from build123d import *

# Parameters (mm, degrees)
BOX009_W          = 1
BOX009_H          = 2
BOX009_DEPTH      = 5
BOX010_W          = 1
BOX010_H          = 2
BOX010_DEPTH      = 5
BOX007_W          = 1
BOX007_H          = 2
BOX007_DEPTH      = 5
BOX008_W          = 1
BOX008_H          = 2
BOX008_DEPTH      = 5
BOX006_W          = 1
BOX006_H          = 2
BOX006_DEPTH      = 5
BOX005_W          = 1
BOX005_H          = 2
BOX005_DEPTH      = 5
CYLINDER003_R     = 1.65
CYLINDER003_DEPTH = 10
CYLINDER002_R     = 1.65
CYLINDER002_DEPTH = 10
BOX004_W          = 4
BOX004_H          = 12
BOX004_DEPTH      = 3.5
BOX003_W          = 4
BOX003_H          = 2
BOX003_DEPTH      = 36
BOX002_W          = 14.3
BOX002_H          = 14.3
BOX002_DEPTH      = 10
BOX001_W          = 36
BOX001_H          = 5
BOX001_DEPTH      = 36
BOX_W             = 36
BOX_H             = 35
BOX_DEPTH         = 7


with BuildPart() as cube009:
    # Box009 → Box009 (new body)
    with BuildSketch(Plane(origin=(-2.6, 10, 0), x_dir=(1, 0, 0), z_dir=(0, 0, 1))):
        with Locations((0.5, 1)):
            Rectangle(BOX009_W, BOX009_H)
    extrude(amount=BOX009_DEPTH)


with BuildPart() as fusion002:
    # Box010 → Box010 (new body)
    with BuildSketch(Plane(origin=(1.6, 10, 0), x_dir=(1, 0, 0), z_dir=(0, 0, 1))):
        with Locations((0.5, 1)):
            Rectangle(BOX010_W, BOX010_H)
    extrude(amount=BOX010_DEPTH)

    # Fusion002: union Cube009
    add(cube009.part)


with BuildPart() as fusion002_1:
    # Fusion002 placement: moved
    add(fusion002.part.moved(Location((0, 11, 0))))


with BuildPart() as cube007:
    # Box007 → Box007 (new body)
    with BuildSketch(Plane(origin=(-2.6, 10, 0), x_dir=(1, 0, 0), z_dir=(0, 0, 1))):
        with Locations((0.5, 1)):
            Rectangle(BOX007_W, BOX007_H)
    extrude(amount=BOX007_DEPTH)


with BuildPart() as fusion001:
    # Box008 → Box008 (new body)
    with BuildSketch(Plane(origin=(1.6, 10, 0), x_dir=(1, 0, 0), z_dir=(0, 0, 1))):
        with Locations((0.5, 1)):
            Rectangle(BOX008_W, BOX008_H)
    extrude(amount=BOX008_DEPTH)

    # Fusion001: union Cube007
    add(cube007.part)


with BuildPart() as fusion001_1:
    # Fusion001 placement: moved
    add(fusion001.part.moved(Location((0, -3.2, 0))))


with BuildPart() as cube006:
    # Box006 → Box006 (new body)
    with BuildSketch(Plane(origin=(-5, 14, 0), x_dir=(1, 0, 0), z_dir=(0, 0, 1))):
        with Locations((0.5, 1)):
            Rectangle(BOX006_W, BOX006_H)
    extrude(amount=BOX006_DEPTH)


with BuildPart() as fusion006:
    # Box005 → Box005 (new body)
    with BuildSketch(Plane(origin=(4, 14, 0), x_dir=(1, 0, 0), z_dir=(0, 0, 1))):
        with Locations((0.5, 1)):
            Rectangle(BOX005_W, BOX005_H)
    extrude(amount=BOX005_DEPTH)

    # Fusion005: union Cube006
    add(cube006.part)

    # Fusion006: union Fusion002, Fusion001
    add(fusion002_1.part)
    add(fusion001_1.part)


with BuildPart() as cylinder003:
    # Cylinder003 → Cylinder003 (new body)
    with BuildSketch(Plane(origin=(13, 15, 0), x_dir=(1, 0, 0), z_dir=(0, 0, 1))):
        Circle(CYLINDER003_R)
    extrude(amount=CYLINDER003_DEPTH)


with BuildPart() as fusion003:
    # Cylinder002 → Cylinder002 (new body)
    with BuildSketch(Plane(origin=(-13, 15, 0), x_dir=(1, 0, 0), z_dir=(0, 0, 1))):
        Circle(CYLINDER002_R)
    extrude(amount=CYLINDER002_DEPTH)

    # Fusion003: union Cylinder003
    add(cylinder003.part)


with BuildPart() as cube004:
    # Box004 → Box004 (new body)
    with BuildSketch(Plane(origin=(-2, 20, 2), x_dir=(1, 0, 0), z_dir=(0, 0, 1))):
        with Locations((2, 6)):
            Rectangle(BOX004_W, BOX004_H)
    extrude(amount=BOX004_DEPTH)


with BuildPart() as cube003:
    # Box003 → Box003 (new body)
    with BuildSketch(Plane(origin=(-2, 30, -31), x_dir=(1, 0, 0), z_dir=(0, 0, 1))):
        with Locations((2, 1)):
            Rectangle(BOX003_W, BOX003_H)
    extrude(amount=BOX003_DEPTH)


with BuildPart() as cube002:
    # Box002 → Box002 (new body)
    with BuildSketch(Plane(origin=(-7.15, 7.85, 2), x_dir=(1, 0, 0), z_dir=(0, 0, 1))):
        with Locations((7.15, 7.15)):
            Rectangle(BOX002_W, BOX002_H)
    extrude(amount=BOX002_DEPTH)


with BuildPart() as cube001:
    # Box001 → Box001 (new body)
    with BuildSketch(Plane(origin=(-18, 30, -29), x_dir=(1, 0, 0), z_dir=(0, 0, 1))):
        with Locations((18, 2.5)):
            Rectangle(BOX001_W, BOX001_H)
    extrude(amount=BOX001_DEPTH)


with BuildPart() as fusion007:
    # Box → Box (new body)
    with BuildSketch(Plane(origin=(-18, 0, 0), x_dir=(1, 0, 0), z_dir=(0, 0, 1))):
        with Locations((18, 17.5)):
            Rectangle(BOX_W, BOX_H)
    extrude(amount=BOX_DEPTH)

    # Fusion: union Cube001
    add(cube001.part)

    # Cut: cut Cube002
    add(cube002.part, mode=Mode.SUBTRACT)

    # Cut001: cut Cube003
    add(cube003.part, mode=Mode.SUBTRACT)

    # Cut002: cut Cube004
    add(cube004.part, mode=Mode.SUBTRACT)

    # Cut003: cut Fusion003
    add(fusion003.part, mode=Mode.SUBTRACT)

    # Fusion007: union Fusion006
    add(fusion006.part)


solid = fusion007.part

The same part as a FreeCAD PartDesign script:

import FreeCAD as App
import Part
import Sketcher

V = App.Vector

doc = App.newDocument("Part")
body = doc.addObject("PartDesign::Body", "Body")

sketch1 = body.newObject("Sketcher::SketchObject", "Sketch")
sketch1.AttachmentSupport = (doc.getObject("XY_Plane"), [""])
sketch1.MapMode = "FlatFace"
sketch1.addGeometry([
    Part.LineSegment(V(-2.6, 12, 0), V(-2.6, 10, 0)),
    Part.LineSegment(V(-2.6, 10, 0), V(-1.6, 10, 0)),
    Part.LineSegment(V(-1.6, 10, 0), V(-1.6, 12, 0)),
    Part.LineSegment(V(-1.6, 12, 0), V(-2.6, 12, 0)),
], False)
sketch1.addConstraint([
    Sketcher.Constraint("Coincident", 0, 2, 1, 1),
    Sketcher.Constraint("Coincident", 1, 2, 2, 1),
    Sketcher.Constraint("Coincident", 2, 2, 3, 1),
    Sketcher.Constraint("Coincident", 3, 2, 0, 1),
    Sketcher.Constraint("Vertical", 0),
    Sketcher.Constraint("Horizontal", 1),
    Sketcher.Constraint("Vertical", 2),
    Sketcher.Constraint("Horizontal", 3),
    Sketcher.Constraint("DistanceX", 1, 1, 1, 2, 1.0),
    Sketcher.Constraint("DistanceY", 0, 2, 0, 1, 2.0),
    Sketcher.Constraint("DistanceY", -1, 1, 0, 2, 10.0),
    Sketcher.Constraint("DistanceX", 0, 2, -1, 1, 2.6),
])
pad1 = body.newObject("PartDesign::Pad", "Pad")
pad1.Profile = sketch1
pad1.Length = 5
body2 = doc.addObject("PartDesign::Body", "Body001")
body2.AllowCompound = True

sketch2 = body2.newObject("Sketcher::SketchObject", "Sketch001")
sketch2.AttachmentSupport = (doc.getObject("XY_Plane001"), [""])
sketch2.MapMode = "FlatFace"
sketch2.addGeometry([
    Part.LineSegment(V(1.6, 12, 0), V(1.6, 10, 0)),
    Part.LineSegment(V(1.6, 10, 0), V(2.6, 10, 0)),
    Part.LineSegment(V(2.6, 10, 0), V(2.6, 12, 0)),
    Part.LineSegment(V(2.6, 12, 0), V(1.6, 12, 0)),
], False)
sketch2.addConstraint([
    Sketcher.Constraint("Coincident", 0, 2, 1, 1),
    Sketcher.Constraint("Coincident", 1, 2, 2, 1),
    Sketcher.Constraint("Coincident", 2, 2, 3, 1),
    Sketcher.Constraint("Coincident", 3, 2, 0, 1),
    Sketcher.Constraint("Vertical", 0),
    Sketcher.Constraint("Horizontal", 1),
    Sketcher.Constraint("Vertical", 2),
    Sketcher.Constraint("Horizontal", 3),
    Sketcher.Constraint("DistanceX", 1, 1, 1, 2, 1.0),
    Sketcher.Constraint("DistanceY", 0, 2, 0, 1, 2.0),
    Sketcher.Constraint("DistanceY", -1, 1, 0, 2, 10.0),
    Sketcher.Constraint("DistanceX", -1, 1, 0, 2, 1.6),
])
pad2 = body2.newObject("PartDesign::Pad", "Pad001")
pad2.Profile = sketch2
pad2.Length = 5
doc.recompute()

boolean = body2.newObject("PartDesign::Boolean", "Boolean")
boolean.Type = "Fuse"
boolean.addObjects([body])
body3 = doc.addObject("PartDesign::Body", "Body002")
body3.AllowCompound = True
doc.recompute()

body2.Placement = App.Placement(V(0, 11, 0), App.Rotation(V(0, 0, 1), 0))
boolean2 = body3.newObject("PartDesign::Boolean", "Boolean001")
boolean2.Type = "Fuse"
boolean2.addObjects([body2])
body4 = doc.addObject("PartDesign::Body", "Body003")

sketch3 = body4.newObject("Sketcher::SketchObject", "Sketch002")
sketch3.AttachmentSupport = (doc.getObject("XY_Plane003"), [""])
sketch3.MapMode = "FlatFace"
sketch3.addGeometry([
    Part.LineSegment(V(-2.6, 12, 0), V(-2.6, 10, 0)),
    Part.LineSegment(V(-2.6, 10, 0), V(-1.6, 10, 0)),
    Part.LineSegment(V(-1.6, 10, 0), V(-1.6, 12, 0)),
    Part.LineSegment(V(-1.6, 12, 0), V(-2.6, 12, 0)),
], False)
sketch3.addConstraint([
    Sketcher.Constraint("Coincident", 0, 2, 1, 1),
    Sketcher.Constraint("Coincident", 1, 2, 2, 1),
    Sketcher.Constraint("Coincident", 2, 2, 3, 1),
    Sketcher.Constraint("Coincident", 3, 2, 0, 1),
    Sketcher.Constraint("Vertical", 0),
    Sketcher.Constraint("Horizontal", 1),
    Sketcher.Constraint("Vertical", 2),
    Sketcher.Constraint("Horizontal", 3),
    Sketcher.Constraint("DistanceX", 1, 1, 1, 2, 1.0),
    Sketcher.Constraint("DistanceY", 0, 2, 0, 1, 2.0),
    Sketcher.Constraint("DistanceY", -1, 1, 0, 2, 10.0),
    Sketcher.Constraint("DistanceX", 0, 2, -1, 1, 2.6),
])
pad3 = body4.newObject("PartDesign::Pad", "Pad002")
pad3.Profile = sketch3
pad3.Length = 5
body5 = doc.addObject("PartDesign::Body", "Body004")
body5.AllowCompound = True

sketch4 = body5.newObject("Sketcher::SketchObject", "Sketch003")
sketch4.AttachmentSupport = (doc.getObject("XY_Plane004"), [""])
sketch4.MapMode = "FlatFace"
sketch4.addGeometry([
    Part.LineSegment(V(1.6, 12, 0), V(1.6, 10, 0)),
    Part.LineSegment(V(1.6, 10, 0), V(2.6, 10, 0)),
    Part.LineSegment(V(2.6, 10, 0), V(2.6, 12, 0)),
    Part.LineSegment(V(2.6, 12, 0), V(1.6, 12, 0)),
], False)
sketch4.addConstraint([
    Sketcher.Constraint("Coincident", 0, 2, 1, 1),
    Sketcher.Constraint("Coincident", 1, 2, 2, 1),
    Sketcher.Constraint("Coincident", 2, 2, 3, 1),
    Sketcher.Constraint("Coincident", 3, 2, 0, 1),
    Sketcher.Constraint("Vertical", 0),
    Sketcher.Constraint("Horizontal", 1),
    Sketcher.Constraint("Vertical", 2),
    Sketcher.Constraint("Horizontal", 3),
    Sketcher.Constraint("DistanceX", 1, 1, 1, 2, 1.0),
    Sketcher.Constraint("DistanceY", 0, 2, 0, 1, 2.0),
    Sketcher.Constraint("DistanceY", -1, 1, 0, 2, 10.0),
    Sketcher.Constraint("DistanceX", -1, 1, 0, 2, 1.6),
])
pad4 = body5.newObject("PartDesign::Pad", "Pad003")
pad4.Profile = sketch4
pad4.Length = 5
doc.recompute()

boolean3 = body5.newObject("PartDesign::Boolean", "Boolean002")
boolean3.Type = "Fuse"
boolean3.addObjects([body4])
body6 = doc.addObject("PartDesign::Body", "Body005")
body6.AllowCompound = True
doc.recompute()

body5.Placement = App.Placement(V(0, -3.2, 0), App.Rotation(V(0, 0, 1), 0))
boolean4 = body6.newObject("PartDesign::Boolean", "Boolean003")
boolean4.Type = "Fuse"
boolean4.addObjects([body5])
body7 = doc.addObject("PartDesign::Body", "Body006")

sketch5 = body7.newObject("Sketcher::SketchObject", "Sketch004")
sketch5.AttachmentSupport = (doc.getObject("XY_Plane006"), [""])
sketch5.MapMode = "FlatFace"
sketch5.addGeometry([
    Part.LineSegment(V(-5, 16, 0), V(-5, 14, 0)),
    Part.LineSegment(V(-5, 14, 0), V(-4, 14, 0)),
    Part.LineSegment(V(-4, 14, 0), V(-4, 16, 0)),
    Part.LineSegment(V(-4, 16, 0), V(-5, 16, 0)),
], False)
sketch5.addConstraint([
    Sketcher.Constraint("Coincident", 0, 2, 1, 1),
    Sketcher.Constraint("Coincident", 1, 2, 2, 1),
    Sketcher.Constraint("Coincident", 2, 2, 3, 1),
    Sketcher.Constraint("Coincident", 3, 2, 0, 1),
    Sketcher.Constraint("Vertical", 0),
    Sketcher.Constraint("Horizontal", 1),
    Sketcher.Constraint("Vertical", 2),
    Sketcher.Constraint("Horizontal", 3),
    Sketcher.Constraint("DistanceX", 1, 1, 1, 2, 1.0),
    Sketcher.Constraint("DistanceY", 0, 2, 0, 1, 2.0),
    Sketcher.Constraint("DistanceX", 0, 2, -1, 1, 5.0),
    Sketcher.Constraint("DistanceY", -1, 1, 0, 2, 14.0),
])
pad5 = body7.newObject("PartDesign::Pad", "Pad004")
pad5.Profile = sketch5
pad5.Length = 5
body8 = doc.addObject("PartDesign::Body", "Body007")
body8.AllowCompound = True

sketch6 = body8.newObject("Sketcher::SketchObject", "Sketch005")
sketch6.AttachmentSupport = (doc.getObject("XY_Plane007"), [""])
sketch6.MapMode = "FlatFace"
sketch6.addGeometry([
    Part.LineSegment(V(4, 16, 0), V(4, 14, 0)),
    Part.LineSegment(V(4, 14, 0), V(5, 14, 0)),
    Part.LineSegment(V(5, 14, 0), V(5, 16, 0)),
    Part.LineSegment(V(5, 16, 0), V(4, 16, 0)),
], False)
sketch6.addConstraint([
    Sketcher.Constraint("Coincident", 0, 2, 1, 1),
    Sketcher.Constraint("Coincident", 1, 2, 2, 1),
    Sketcher.Constraint("Coincident", 2, 2, 3, 1),
    Sketcher.Constraint("Coincident", 3, 2, 0, 1),
    Sketcher.Constraint("Vertical", 0),
    Sketcher.Constraint("Horizontal", 1),
    Sketcher.Constraint("Vertical", 2),
    Sketcher.Constraint("Horizontal", 3),
    Sketcher.Constraint("DistanceX", 1, 1, 1, 2, 1.0),
    Sketcher.Constraint("DistanceY", 0, 2, 0, 1, 2.0),
    Sketcher.Constraint("DistanceX", -1, 1, 0, 2, 4.0),
    Sketcher.Constraint("DistanceY", -1, 1, 0, 2, 14.0),
])
pad6 = body8.newObject("PartDesign::Pad", "Pad005")
pad6.Profile = sketch6
pad6.Length = 5
doc.recompute()

boolean5 = body8.newObject("PartDesign::Boolean", "Boolean004")
boolean5.Type = "Fuse"
boolean5.addObjects([body7])
doc.recompute()

boolean6 = body8.newObject("PartDesign::Boolean", "Boolean005")
boolean6.Type = "Fuse"
boolean6.addObjects([body3])
doc.recompute()

boolean7 = body8.newObject("PartDesign::Boolean", "Boolean006")
boolean7.Type = "Fuse"
boolean7.addObjects([body6])
body9 = doc.addObject("PartDesign::Body", "Body008")

sketch7 = body9.newObject("Sketcher::SketchObject", "Sketch006")
sketch7.AttachmentSupport = (doc.getObject("XY_Plane008"), [""])
sketch7.MapMode = "FlatFace"
sketch7.addGeometry(Part.Circle(V(13, 15, 0), V(0, 0, 1), 1.65), False)
sketch7.addConstraint([
    Sketcher.Constraint("Diameter", 0, 3.3),
    Sketcher.Constraint("DistanceX", -1, 1, 0, 3, 13.0),
    Sketcher.Constraint("DistanceY", -1, 1, 0, 3, 15.0),
])
pad7 = body9.newObject("PartDesign::Pad", "Pad006")
pad7.Profile = sketch7
pad7.Length = 10
body10 = doc.addObject("PartDesign::Body", "Body009")
body10.AllowCompound = True

sketch8 = body10.newObject("Sketcher::SketchObject", "Sketch007")
sketch8.AttachmentSupport = (doc.getObject("XY_Plane009"), [""])
sketch8.MapMode = "FlatFace"
sketch8.addGeometry(Part.Circle(V(-13, 15, 0), V(0, 0, 1), 1.65), False)
sketch8.addConstraint([
    Sketcher.Constraint("Diameter", 0, 3.3),
    Sketcher.Constraint("DistanceX", 0, 3, -1, 1, 13.0),
    Sketcher.Constraint("DistanceY", -1, 1, 0, 3, 15.0),
])
pad8 = body10.newObject("PartDesign::Pad", "Pad007")
pad8.Profile = sketch8
pad8.Length = 10
doc.recompute()

boolean8 = body10.newObject("PartDesign::Boolean", "Boolean007")
boolean8.Type = "Fuse"
boolean8.addObjects([body9])
body11 = doc.addObject("PartDesign::Body", "Body010")

sketch9 = body11.newObject("Sketcher::SketchObject", "Sketch008")
sketch9.AttachmentSupport = (doc.getObject("XY_Plane010"), [""])
sketch9.MapMode = "FlatFace"
sketch9.AttachmentOffset = App.Placement(V(0, 0, 2), App.Rotation())
sketch9.addGeometry([
    Part.LineSegment(V(-2, 32, 0), V(-2, 20, 0)),
    Part.LineSegment(V(-2, 20, 0), V(2, 20, 0)),
    Part.LineSegment(V(2, 20, 0), V(2, 32, 0)),
    Part.LineSegment(V(2, 32, 0), V(-2, 32, 0)),
], False)
sketch9.addConstraint([
    Sketcher.Constraint("Coincident", 0, 2, 1, 1),
    Sketcher.Constraint("Coincident", 1, 2, 2, 1),
    Sketcher.Constraint("Coincident", 2, 2, 3, 1),
    Sketcher.Constraint("Coincident", 3, 2, 0, 1),
    Sketcher.Constraint("Vertical", 0),
    Sketcher.Constraint("Horizontal", 1),
    Sketcher.Constraint("Vertical", 2),
    Sketcher.Constraint("Horizontal", 3),
    Sketcher.Constraint("DistanceX", 1, 1, 1, 2, 4.0),
    Sketcher.Constraint("DistanceY", 0, 2, 0, 1, 12.0),
    Sketcher.Constraint("DistanceX", 0, 2, -1, 1, 2.0),
    Sketcher.Constraint("DistanceY", -1, 1, 0, 2, 20.0),
])
pad9 = body11.newObject("PartDesign::Pad", "Pad008")
pad9.Profile = sketch9
pad9.Length = 3.5
body12 = doc.addObject("PartDesign::Body", "Body011")

sketch10 = body12.newObject("Sketcher::SketchObject", "Sketch009")
sketch10.AttachmentSupport = (doc.getObject("XY_Plane011"), [""])
sketch10.MapMode = "FlatFace"
sketch10.AttachmentOffset = App.Placement(V(0, 0, -31), App.Rotation())
sketch10.addGeometry([
    Part.LineSegment(V(-2, 32, 0), V(-2, 30, 0)),
    Part.LineSegment(V(-2, 30, 0), V(2, 30, 0)),
    Part.LineSegment(V(2, 30, 0), V(2, 32, 0)),
    Part.LineSegment(V(2, 32, 0), V(-2, 32, 0)),
], False)
sketch10.addConstraint([
    Sketcher.Constraint("Coincident", 0, 2, 1, 1),
    Sketcher.Constraint("Coincident", 1, 2, 2, 1),
    Sketcher.Constraint("Coincident", 2, 2, 3, 1),
    Sketcher.Constraint("Coincident", 3, 2, 0, 1),
    Sketcher.Constraint("Vertical", 0),
    Sketcher.Constraint("Horizontal", 1),
    Sketcher.Constraint("Vertical", 2),
    Sketcher.Constraint("Horizontal", 3),
    Sketcher.Constraint("DistanceX", 1, 1, 1, 2, 4.0),
    Sketcher.Constraint("DistanceY", 0, 2, 0, 1, 2.0),
    Sketcher.Constraint("DistanceX", 0, 2, -1, 1, 2.0),
    Sketcher.Constraint("DistanceY", -1, 1, 0, 2, 30.0),
])
pad10 = body12.newObject("PartDesign::Pad", "Pad009")
pad10.Profile = sketch10
pad10.Length = 36
body13 = doc.addObject("PartDesign::Body", "Body012")

sketch11 = body13.newObject("Sketcher::SketchObject", "Sketch010")
sketch11.AttachmentSupport = (doc.getObject("XY_Plane012"), [""])
sketch11.MapMode = "FlatFace"
sketch11.AttachmentOffset = App.Placement(V(0, 0, 2), App.Rotation())
sketch11.addGeometry([
    Part.LineSegment(V(-7.15, 22.15, 0), V(-7.15, 7.85, 0)),
    Part.LineSegment(V(-7.15, 7.85, 0), V(7.15, 7.85, 0)),
    Part.LineSegment(V(7.15, 7.85, 0), V(7.15, 22.15, 0)),
    Part.LineSegment(V(7.15, 22.15, 0), V(-7.15, 22.15, 0)),
], False)
sketch11.addConstraint([
    Sketcher.Constraint("Coincident", 0, 2, 1, 1),
    Sketcher.Constraint("Coincident", 1, 2, 2, 1),
    Sketcher.Constraint("Coincident", 2, 2, 3, 1),
    Sketcher.Constraint("Coincident", 3, 2, 0, 1),
    Sketcher.Constraint("Vertical", 0),
    Sketcher.Constraint("Horizontal", 1),
    Sketcher.Constraint("Vertical", 2),
    Sketcher.Constraint("Horizontal", 3),
    Sketcher.Constraint("Equal", 3, 0),
    Sketcher.Constraint("DistanceX", 1, 1, 1, 2, 14.3),
    Sketcher.Constraint("DistanceX", 0, 2, -1, 1, 7.15),
    Sketcher.Constraint("DistanceY", -1, 1, 0, 2, 7.85),
])
pad11 = body13.newObject("PartDesign::Pad", "Pad010")
pad11.Profile = sketch11
pad11.Length = 10
body14 = doc.addObject("PartDesign::Body", "Body013")

sketch12 = body14.newObject("Sketcher::SketchObject", "Sketch011")
sketch12.AttachmentSupport = (doc.getObject("XY_Plane013"), [""])
sketch12.MapMode = "FlatFace"
sketch12.AttachmentOffset = App.Placement(V(0, 0, -29), App.Rotation())
sketch12.addGeometry([
    Part.LineSegment(V(-18, 35, 0), V(-18, 30, 0)),
    Part.LineSegment(V(-18, 30, 0), V(18, 30, 0)),
    Part.LineSegment(V(18, 30, 0), V(18, 35, 0)),
    Part.LineSegment(V(18, 35, 0), V(-18, 35, 0)),
], False)
sketch12.addConstraint([
    Sketcher.Constraint("Coincident", 0, 2, 1, 1),
    Sketcher.Constraint("Coincident", 1, 2, 2, 1),
    Sketcher.Constraint("Coincident", 2, 2, 3, 1),
    Sketcher.Constraint("Coincident", 3, 2, 0, 1),
    Sketcher.Constraint("Vertical", 0),
    Sketcher.Constraint("Horizontal", 1),
    Sketcher.Constraint("Vertical", 2),
    Sketcher.Constraint("Horizontal", 3),
    Sketcher.Constraint("DistanceX", 1, 1, 1, 2, 36.0),
    Sketcher.Constraint("DistanceY", 0, 2, 0, 1, 5.0),
    Sketcher.Constraint("DistanceX", 0, 2, -1, 1, 18.0),
    Sketcher.Constraint("DistanceY", -1, 1, 0, 2, 30.0),
])
pad12 = body14.newObject("PartDesign::Pad", "Pad011")
pad12.Profile = sketch12
pad12.Length = 36
body15 = doc.addObject("PartDesign::Body", "Body014")

sketch13 = body15.newObject("Sketcher::SketchObject", "Sketch012")
sketch13.AttachmentSupport = (doc.getObject("XY_Plane014"), [""])
sketch13.MapMode = "FlatFace"
sketch13.addGeometry([
    Part.LineSegment(V(-18, 35, 0), V(-18, 0, 0)),
    Part.LineSegment(V(-18, 0, 0), V(18, 0, 0)),
    Part.LineSegment(V(18, 0, 0), V(18, 35, 0)),
    Part.LineSegment(V(18, 35, 0), V(-18, 35, 0)),
], False)
sketch13.addConstraint([
    Sketcher.Constraint("Coincident", 0, 2, 1, 1),
    Sketcher.Constraint("Coincident", 1, 2, 2, 1),
    Sketcher.Constraint("Coincident", 2, 2, 3, 1),
    Sketcher.Constraint("Coincident", 3, 2, 0, 1),
    Sketcher.Constraint("Vertical", 0),
    Sketcher.Constraint("Horizontal", 1),
    Sketcher.Constraint("Vertical", 2),
    Sketcher.Constraint("Horizontal", 3),
    Sketcher.Constraint("Symmetric", 0, 2, 1, 2, -1, 1),
    Sketcher.Constraint("DistanceX", 1, 1, 1, 2, 36.0),
    Sketcher.Constraint("DistanceY", 0, 2, 0, 1, 35.0),
])
pad13 = body15.newObject("PartDesign::Pad", "Pad012")
pad13.Profile = sketch13
pad13.Length = 7
doc.recompute()

boolean9 = body15.newObject("PartDesign::Boolean", "Boolean008")
boolean9.Type = "Fuse"
boolean9.addObjects([body14])
doc.recompute()

boolean10 = body15.newObject("PartDesign::Boolean", "Boolean009")
boolean10.Type = "Cut"
boolean10.addObjects([body13])
doc.recompute()

boolean11 = body15.newObject("PartDesign::Boolean", "Boolean010")
boolean11.Type = "Cut"
boolean11.addObjects([body12])
doc.recompute()

boolean12 = body15.newObject("PartDesign::Boolean", "Boolean011")
boolean12.Type = "Cut"
boolean12.addObjects([body11])
doc.recompute()

boolean13 = body15.newObject("PartDesign::Boolean", "Boolean012")
boolean13.Type = "Cut"
boolean13.addObjects([body10])
doc.recompute()

boolean14 = body15.newObject("PartDesign::Boolean", "Boolean013")
boolean14.Type = "Fuse"
boolean14.addObjects([body8])

doc.recompute()
